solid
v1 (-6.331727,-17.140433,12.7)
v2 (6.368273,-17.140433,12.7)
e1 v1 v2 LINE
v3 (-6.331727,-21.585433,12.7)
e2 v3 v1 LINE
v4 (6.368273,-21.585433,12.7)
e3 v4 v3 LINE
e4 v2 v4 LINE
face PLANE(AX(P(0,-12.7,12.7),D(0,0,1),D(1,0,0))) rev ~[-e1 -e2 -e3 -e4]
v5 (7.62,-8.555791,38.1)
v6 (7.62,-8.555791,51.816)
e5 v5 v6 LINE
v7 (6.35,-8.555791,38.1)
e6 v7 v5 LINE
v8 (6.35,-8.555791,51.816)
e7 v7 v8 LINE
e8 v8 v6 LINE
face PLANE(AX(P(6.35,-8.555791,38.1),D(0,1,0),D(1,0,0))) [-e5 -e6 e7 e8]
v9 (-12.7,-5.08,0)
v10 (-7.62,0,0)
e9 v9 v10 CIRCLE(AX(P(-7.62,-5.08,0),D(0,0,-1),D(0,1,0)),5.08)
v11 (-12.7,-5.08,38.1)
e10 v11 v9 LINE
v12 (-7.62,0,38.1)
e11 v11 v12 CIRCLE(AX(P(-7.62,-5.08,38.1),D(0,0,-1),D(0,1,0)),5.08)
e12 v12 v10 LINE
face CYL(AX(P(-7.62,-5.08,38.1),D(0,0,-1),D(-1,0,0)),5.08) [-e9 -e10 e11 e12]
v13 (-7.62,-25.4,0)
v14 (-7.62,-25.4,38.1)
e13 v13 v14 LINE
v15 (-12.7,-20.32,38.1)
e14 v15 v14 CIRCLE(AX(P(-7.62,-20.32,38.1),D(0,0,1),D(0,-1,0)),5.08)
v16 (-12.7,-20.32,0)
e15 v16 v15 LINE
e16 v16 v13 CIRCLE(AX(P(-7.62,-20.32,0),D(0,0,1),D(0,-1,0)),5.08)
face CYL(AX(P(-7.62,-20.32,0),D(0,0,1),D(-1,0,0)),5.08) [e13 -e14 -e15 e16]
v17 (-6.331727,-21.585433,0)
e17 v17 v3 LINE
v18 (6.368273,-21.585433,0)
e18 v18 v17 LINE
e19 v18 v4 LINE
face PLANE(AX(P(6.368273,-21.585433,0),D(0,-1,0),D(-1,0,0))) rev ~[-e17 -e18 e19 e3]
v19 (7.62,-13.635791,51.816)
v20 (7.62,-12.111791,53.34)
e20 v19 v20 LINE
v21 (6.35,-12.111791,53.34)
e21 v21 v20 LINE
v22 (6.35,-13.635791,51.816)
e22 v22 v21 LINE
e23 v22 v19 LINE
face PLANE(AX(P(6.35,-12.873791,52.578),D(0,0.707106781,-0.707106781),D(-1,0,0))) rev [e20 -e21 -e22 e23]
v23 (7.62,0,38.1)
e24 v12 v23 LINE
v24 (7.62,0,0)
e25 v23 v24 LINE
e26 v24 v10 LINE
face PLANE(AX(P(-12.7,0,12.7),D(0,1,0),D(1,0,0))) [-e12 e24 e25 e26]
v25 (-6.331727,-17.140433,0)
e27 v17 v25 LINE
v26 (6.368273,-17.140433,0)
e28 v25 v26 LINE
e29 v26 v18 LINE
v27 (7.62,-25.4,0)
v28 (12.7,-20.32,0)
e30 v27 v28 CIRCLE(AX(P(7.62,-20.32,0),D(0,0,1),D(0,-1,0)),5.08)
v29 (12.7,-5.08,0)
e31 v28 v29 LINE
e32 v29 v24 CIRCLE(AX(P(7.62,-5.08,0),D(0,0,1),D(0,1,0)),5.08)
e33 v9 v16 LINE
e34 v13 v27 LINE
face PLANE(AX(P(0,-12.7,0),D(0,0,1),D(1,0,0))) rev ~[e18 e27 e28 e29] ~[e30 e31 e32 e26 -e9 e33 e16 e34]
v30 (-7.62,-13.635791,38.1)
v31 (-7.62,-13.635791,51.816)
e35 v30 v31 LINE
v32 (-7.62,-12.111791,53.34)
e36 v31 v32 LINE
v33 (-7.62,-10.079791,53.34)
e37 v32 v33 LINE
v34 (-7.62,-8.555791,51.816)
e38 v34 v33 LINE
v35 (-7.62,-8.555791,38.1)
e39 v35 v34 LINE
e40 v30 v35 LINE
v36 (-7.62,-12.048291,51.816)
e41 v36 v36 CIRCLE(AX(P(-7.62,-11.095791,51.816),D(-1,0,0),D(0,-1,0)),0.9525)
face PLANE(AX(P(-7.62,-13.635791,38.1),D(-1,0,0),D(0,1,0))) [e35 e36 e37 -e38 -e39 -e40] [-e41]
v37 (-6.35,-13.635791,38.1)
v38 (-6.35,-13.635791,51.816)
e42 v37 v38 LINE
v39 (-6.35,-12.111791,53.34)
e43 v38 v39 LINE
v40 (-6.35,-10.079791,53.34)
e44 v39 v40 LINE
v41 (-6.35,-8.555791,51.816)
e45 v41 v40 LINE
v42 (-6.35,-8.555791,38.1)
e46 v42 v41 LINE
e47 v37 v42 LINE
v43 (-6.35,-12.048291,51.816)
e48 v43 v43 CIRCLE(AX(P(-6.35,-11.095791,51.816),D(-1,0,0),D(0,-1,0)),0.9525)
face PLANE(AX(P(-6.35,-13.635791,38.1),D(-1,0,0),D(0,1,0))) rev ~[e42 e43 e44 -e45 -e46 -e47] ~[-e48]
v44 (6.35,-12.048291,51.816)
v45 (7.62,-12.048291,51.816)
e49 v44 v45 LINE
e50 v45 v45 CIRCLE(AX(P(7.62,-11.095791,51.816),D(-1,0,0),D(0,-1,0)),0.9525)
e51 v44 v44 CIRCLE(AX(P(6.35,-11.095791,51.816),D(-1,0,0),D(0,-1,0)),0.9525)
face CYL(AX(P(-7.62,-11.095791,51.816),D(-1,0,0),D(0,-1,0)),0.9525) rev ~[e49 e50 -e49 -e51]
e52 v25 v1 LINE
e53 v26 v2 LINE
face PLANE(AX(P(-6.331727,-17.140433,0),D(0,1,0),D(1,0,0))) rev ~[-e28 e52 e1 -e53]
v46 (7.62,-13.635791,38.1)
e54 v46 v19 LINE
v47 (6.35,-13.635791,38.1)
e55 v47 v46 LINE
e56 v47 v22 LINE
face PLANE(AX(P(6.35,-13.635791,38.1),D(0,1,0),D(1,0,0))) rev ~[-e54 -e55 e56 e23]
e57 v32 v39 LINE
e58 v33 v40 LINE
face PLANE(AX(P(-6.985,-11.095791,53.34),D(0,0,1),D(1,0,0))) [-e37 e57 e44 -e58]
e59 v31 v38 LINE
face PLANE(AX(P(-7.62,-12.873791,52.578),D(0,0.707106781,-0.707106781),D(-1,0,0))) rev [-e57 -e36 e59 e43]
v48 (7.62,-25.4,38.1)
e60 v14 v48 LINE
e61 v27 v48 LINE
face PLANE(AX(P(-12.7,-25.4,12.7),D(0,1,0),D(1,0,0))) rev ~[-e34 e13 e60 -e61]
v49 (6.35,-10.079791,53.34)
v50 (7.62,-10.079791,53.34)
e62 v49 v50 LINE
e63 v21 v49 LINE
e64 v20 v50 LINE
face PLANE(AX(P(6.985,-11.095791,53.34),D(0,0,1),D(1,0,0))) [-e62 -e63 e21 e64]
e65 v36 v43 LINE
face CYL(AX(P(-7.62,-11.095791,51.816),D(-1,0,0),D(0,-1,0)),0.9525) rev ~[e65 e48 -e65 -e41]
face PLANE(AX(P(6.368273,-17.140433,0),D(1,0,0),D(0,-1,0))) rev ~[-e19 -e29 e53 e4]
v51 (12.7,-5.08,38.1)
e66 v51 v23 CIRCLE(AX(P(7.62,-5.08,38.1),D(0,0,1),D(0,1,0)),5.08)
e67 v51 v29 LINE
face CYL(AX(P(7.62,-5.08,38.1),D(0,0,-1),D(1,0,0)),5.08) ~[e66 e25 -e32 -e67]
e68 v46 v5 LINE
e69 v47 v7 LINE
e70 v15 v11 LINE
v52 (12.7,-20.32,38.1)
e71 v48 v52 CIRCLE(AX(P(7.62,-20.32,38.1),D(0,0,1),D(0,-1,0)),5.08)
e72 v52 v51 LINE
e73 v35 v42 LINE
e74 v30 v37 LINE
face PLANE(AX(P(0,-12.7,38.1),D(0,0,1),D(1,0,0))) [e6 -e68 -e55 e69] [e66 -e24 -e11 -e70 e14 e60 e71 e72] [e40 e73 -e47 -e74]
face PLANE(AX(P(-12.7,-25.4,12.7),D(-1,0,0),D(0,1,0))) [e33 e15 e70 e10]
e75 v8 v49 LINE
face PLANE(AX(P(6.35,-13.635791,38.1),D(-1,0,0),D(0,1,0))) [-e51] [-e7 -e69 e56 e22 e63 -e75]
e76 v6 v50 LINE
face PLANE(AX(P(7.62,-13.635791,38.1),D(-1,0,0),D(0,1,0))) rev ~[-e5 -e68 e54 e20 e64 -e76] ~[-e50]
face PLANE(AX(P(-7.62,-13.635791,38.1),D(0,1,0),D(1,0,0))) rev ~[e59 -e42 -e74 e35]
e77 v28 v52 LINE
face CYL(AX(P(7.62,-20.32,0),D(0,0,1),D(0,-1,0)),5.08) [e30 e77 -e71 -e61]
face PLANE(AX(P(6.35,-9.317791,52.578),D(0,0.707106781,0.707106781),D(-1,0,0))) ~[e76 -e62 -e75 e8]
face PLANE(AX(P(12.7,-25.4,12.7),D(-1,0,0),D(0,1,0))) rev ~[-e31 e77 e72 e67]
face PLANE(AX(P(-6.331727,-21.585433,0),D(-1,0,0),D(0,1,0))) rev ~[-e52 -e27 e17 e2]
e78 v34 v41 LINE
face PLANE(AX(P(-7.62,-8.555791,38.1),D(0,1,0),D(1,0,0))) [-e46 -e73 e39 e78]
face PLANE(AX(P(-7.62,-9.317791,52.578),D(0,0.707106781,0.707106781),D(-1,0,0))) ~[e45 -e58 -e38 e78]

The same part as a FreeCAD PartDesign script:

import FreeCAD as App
import Part
import Sketcher
Q = App.Units.Quantity


def edges_at(feature, points):
    """Names of the edges that pass closest to the given points."""
    edges = feature.Shape.Edges
    near = lambda p: min(range(len(edges)), key=lambda i: edges[i].distToShape(Part.Vertex(*p))[0])
    return sorted({f"Edge{near(p) + 1}" for p in points})


def add_polygon(sketch, points):
    """Adds a closed chain of lines whose ends are joined by coincident constraints."""
    first, n = sketch.GeometryCount, len(points)
    for a, b in zip(points, points[1:] + points[:1]):
        sketch.addGeometry(Part.LineSegment(App.Vector(*a, 0), App.Vector(*b, 0)), False)
    for i in range(n):
        sketch.addConstraint(Sketcher.Constraint("Coincident", first + i, 2, first + (i + 1) % n, 1))

doc = App.newDocument("Part")
params = doc.addObject("Spreadsheet::Sheet", "Params")
for row, (alias, value) in enumerate([
    ("sketch1_width", "1 in"),
    ("sketch1_width2", "0.5 in"),
    ("sketch1_height", "0.175 in"),
    ("pad1_length", "0.5 in"),
    ("sketch2_width", "1 in"),
    ("pad2_length", "1 in"),
    ("fillet_radius", "0.2 in"),
    ("sketch3_height", "0.2 in"),
    ("sketch3_width", "0.05 in"),
    ("pad3_length", "0.6 in"),
    ("chamfer_size", "0.06 in"),
    ("sketch4_diameter", "0.075 in"),
    ("pocket1_length", "5 in"),
], start=1):
    params.set(f"A{row}", alias)
    params.set(f"B{row}", "=" + value)
    params.setAlias(f"B{row}", alias)

body = doc.addObject("PartDesign::Body", "Body")

# Sketch on XY plane
sketch1 = body.newObject("Sketcher::SketchObject", "Sketch")
sketch1.AttachmentSupport = (doc.getObject("XY_Plane"), [""])
sketch1.MapMode = "FlatFace"
add_polygon(sketch1, [(-12.7, -25.4), (12.7, -25.4), (12.7, 0), (-12.7, 0)])  # lines 0-3
add_polygon(sketch1, [(6.368273, -17.140433), (6.368273, -21.585433), (-6.331727, -21.585433), (-6.331727, -17.140433)])  # lines 4-7
sketch1.addConstraint([
    Sketcher.Constraint("Horizontal", 0),
    Sketcher.Constraint("Vertical", 1),
    Sketcher.Constraint("Horizontal", 2),
    Sketcher.Constraint("Vertical", 3),
    Sketcher.Constraint("Vertical", 4),
    Sketcher.Constraint("Horizontal", 5),
    Sketcher.Constraint("Vertical", 6),
    Sketcher.Constraint("Horizontal", 7),
    Sketcher.Constraint("Symmetric", 1, 2, 2, 2, -1, 1),
    Sketcher.Constraint("Equal", 2, 1),
    Sketcher.Constraint("DistanceX", 0, 1, 0, 2, Q("1 in")),
    Sketcher.Constraint("DistanceX", 5, 2, 5, 1, Q("0.5 in")),
    Sketcher.Constraint("DistanceY", 4, 2, 4, 1, Q("0.175 in")),
    Sketcher.Constraint("DistanceX", -1, 1, 4, 2, 6.368273),
    Sketcher.Constraint("DistanceY", 4, 2, -1, 1, 21.585433),
])
sketch1.setExpression("Constraints[18]", "Params.sketch1_width")
sketch1.setExpression("Constraints[19]", "Params.sketch1_width2")
sketch1.setExpression("Constraints[20]", "Params.sketch1_height")
pad1 = body.newObject("PartDesign::Pad", "Pad")
pad1.Profile = sketch1
pad1.setExpression("Length", "Params.pad1_length")

# Sketch on XY plane
sketch2 = body.newObject("Sketcher::SketchObject", "Sketch001")
sketch2.AttachmentSupport = (doc.getObject("XY_Plane"), [""])
sketch2.MapMode = "FlatFace"
sketch2.AttachmentOffset = App.Placement(App.Vector(0, 0, 0.5 * 25.4), App.Rotation())
add_polygon(sketch2, [(-12.7, 0), (-12.7, -25.4), (12.7, -25.4), (12.7, 0)])  # lines 0-3
sketch2.addConstraint([
    Sketcher.Constraint("Vertical", 0),
    Sketcher.Constraint("Horizontal", 1),
    Sketcher.Constraint("Vertical", 2),
    Sketcher.Constraint("Horizontal", 3),
    Sketcher.Constraint("Symmetric", 2, 2, 3, 2, -1, 1),
    Sketcher.Constraint("Equal", 3, 0),
    Sketcher.Constraint("DistanceX", 1, 1, 1, 2, Q("1 in")),
])
sketch2.setExpression("Constraints[10]", "Params.sketch2_width")
pad2 = body.newObject("PartDesign::Pad", "Pad001")
pad2.Profile = sketch2
pad2.setExpression("Length", "Params.pad2_length")
doc.recompute()

fillet = body.newObject("PartDesign::Fillet", "Fillet")
fillet.Base = (pad2, edges_at(pad2, [
    (-12.7, -25.4, 19.05),
    (12.7, -25.4, 19.05),
    (-12.7, 0, 19.05),
    (12.7, 0, 19.05),
]))
fillet.setExpression("Radius", "Params.fillet_radius")

# Sketch on XY plane
sketch3 = body.newObject("Sketcher::SketchObject", "Sketch002")
sketch3.AttachmentSupport = (doc.getObject("XY_Plane"), [""])
sketch3.MapMode = "FlatFace"
sketch3.AttachmentOffset = App.Placement(App.Vector(0, 0, 1.5 * 25.4), App.Rotation())
add_polygon(sketch3, [(-7.62, -8.555791), (-7.62, -13.635791), (-6.35, -13.635791), (-6.35, -8.555791)])  # lines 0-3
add_polygon(sketch3, [(6.35, -8.555791), (6.35, -13.635791), (7.62, -13.635791), (7.62, -8.555791)])  # lines 4-7
sketch3.addConstraint([
    Sketcher.Constraint("Vertical", 0),
    Sketcher.Constraint("Horizontal", 1),
    Sketcher.Constraint("Vertical", 2),
    Sketcher.Constraint("Horizontal", 3),
    Sketcher.Constraint("Vertical", 4),
    Sketcher.Constraint("Horizontal", 5),
    Sketcher.Constraint("Vertical", 6),
    Sketcher.Constraint("Horizontal", 7),
    Sketcher.Constraint("Symmetric", 1, 2, 4, 2, -2),
    Sketcher.Constraint("Symmetric", 3, 2, 6, 2, -2),
    Sketcher.Constraint("DistanceY", 0, 2, 0, 1, Q("0.2 in")),
    Sketcher.Constraint("DistanceX", 1, 1, 1, 2, Q("0.05 in")),
    Sketcher.Constraint("DistanceX", 0, 2, -1, 1, Q("0.3 in")),
    Sketcher.Constraint("DistanceY", 0, 2, -1, 1, 13.635791),
])
sketch3.setExpression("Constraints[18]", "Params.sketch3_height")
sketch3.setExpression("Constraints[19]", "Params.sketch3_width")
pad3 = body.newObject("PartDesign::Pad", "Pad002")
pad3.Profile = sketch3
pad3.setExpression("Length", "Params.pad3_length")
doc.recompute()

chamfer = body.newObject("PartDesign::Chamfer", "Chamfer")
chamfer.Base = (pad3, edges_at(pad3, [
    (-6.985, -13.636, 53.34),
    (6.985, -13.636, 53.34),
    (-6.985, -8.556, 53.34),
    (6.985, -8.556, 53.34),
]))
chamfer.setExpression("Size", "Params.chamfer_size")

# Sketch on YZ plane
sketch4 = body.newObject("Sketcher::SketchObject", "Sketch003")
sketch4.AttachmentSupport = (doc.getObject("YZ_Plane"), [""])
sketch4.MapMode = "FlatFace"
sketch4.AttachmentOffset = App.Placement(App.Vector(0, 0, -0.3 * 25.4), App.Rotation())
sketch4.addGeometry(Part.Circle(App.Vector(-11.095791, 51.816, 0), App.Vector(0, 0, 1), 0.9525), False)
sketch4.addConstraint([
    Sketcher.Constraint("Diameter", 0, Q("0.075 in")),
    Sketcher.Constraint("DistanceY", -1, 1, 0, 3, Q("2.04 in")),
    Sketcher.Constraint("DistanceX", 0, 3, -1, 1, 11.095791),
])
sketch4.setExpression("Constraints[0]", "Params.sketch4_diameter")
pocket1 = body.newObject("PartDesign::Pocket", "Pocket")
pocket1.Profile = sketch4
pocket1.setExpression("Length", "Params.pocket1_length")
pocket1.Reversed = True

doc.recompute()
